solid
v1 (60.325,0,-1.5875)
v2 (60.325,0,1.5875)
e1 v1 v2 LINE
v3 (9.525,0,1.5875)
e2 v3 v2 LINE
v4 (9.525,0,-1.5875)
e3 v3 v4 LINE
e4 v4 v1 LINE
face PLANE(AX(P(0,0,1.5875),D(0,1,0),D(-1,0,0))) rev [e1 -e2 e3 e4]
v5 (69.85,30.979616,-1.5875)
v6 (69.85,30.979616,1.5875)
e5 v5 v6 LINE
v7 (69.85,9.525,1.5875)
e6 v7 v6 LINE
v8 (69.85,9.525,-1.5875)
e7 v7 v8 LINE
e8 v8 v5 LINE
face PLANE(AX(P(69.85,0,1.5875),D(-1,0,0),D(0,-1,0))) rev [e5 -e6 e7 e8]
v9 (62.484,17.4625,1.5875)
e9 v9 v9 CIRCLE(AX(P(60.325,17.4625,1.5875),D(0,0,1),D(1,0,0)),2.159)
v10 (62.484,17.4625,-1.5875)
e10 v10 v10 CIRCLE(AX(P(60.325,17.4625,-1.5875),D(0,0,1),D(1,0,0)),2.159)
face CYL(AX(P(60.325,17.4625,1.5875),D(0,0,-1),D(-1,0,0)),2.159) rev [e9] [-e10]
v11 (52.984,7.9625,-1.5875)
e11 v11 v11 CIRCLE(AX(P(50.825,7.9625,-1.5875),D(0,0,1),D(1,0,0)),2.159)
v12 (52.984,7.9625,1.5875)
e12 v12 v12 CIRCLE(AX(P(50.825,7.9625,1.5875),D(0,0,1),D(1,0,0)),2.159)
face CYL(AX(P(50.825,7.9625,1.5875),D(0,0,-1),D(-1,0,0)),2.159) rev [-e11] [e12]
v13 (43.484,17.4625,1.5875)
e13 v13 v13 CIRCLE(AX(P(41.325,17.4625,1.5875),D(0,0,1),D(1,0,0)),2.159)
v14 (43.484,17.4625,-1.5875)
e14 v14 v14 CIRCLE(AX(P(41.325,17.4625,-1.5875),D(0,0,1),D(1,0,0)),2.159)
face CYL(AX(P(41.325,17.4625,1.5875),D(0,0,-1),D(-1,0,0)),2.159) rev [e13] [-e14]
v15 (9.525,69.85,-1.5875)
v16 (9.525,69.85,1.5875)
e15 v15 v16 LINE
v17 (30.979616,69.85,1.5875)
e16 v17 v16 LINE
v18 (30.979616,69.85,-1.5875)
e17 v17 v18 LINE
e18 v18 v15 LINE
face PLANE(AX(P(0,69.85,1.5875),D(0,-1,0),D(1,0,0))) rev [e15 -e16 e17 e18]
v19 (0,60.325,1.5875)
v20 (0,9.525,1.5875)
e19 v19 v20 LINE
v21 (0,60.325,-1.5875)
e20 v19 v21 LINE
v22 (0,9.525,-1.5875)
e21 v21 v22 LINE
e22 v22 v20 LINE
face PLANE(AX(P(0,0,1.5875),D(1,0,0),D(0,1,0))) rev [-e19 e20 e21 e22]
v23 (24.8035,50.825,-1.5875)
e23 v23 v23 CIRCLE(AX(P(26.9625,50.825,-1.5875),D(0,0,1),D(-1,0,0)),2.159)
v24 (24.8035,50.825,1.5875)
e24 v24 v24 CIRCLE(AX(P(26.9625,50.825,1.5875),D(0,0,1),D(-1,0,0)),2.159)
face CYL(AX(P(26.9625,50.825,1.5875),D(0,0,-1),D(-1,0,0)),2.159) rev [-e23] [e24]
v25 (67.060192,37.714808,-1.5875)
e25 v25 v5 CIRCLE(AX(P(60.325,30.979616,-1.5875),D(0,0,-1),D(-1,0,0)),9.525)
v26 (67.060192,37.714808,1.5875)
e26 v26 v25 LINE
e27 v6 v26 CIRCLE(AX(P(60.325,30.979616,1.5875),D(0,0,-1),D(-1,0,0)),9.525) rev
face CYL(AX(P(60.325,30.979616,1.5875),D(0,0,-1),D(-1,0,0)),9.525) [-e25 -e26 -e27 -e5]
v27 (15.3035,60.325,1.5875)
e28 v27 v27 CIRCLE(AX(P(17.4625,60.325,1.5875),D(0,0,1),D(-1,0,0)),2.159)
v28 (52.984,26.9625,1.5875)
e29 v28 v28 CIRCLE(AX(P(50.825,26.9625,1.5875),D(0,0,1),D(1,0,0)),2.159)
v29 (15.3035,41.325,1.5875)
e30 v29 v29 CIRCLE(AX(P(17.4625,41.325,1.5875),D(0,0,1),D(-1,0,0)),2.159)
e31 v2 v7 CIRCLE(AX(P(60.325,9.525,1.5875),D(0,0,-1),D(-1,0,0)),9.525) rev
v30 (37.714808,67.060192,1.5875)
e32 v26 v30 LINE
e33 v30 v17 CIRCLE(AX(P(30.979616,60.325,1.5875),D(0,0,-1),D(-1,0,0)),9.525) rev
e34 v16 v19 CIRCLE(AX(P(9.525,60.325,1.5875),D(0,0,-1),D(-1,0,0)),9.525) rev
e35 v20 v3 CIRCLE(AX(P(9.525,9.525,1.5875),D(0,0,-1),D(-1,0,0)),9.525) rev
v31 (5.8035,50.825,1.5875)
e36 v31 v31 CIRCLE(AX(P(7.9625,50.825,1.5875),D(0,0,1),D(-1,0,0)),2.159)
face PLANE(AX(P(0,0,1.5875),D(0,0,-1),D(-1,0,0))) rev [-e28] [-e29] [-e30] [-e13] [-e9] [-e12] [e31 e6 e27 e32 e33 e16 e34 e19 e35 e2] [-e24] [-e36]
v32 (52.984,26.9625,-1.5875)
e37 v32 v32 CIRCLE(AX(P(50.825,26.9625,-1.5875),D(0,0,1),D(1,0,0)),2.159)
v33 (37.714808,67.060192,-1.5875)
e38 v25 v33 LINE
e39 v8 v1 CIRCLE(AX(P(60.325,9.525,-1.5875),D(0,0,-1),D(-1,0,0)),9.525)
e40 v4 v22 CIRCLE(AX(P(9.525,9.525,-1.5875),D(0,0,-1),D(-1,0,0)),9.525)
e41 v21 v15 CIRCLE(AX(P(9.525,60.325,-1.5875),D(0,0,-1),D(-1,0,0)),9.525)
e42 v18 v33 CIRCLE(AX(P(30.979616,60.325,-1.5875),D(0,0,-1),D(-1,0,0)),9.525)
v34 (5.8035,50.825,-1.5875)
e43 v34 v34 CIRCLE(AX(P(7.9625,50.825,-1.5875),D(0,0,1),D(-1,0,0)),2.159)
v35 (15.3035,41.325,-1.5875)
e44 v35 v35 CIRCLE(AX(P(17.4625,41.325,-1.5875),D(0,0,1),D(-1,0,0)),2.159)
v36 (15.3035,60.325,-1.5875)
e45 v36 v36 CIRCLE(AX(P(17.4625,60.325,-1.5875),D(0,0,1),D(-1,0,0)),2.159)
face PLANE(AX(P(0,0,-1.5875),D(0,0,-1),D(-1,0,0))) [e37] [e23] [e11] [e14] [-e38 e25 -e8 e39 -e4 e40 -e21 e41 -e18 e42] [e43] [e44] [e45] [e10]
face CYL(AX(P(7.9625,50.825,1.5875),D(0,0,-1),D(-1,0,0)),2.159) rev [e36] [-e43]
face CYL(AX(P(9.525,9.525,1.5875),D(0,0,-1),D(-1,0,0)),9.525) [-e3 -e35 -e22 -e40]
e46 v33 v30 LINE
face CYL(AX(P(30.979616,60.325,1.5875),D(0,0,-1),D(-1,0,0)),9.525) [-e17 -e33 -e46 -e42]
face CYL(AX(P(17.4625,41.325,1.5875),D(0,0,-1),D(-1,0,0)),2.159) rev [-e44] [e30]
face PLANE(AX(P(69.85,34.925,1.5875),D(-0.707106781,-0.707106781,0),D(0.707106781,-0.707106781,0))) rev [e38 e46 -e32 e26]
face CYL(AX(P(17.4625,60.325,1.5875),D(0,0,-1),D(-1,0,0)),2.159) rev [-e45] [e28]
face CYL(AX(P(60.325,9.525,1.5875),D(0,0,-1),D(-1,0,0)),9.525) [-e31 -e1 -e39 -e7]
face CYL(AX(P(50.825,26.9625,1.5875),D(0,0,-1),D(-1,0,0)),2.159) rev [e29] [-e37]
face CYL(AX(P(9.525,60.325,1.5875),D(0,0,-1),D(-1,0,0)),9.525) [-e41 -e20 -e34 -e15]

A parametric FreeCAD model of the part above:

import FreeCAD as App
import Part
import Sketcher
from FreeCAD import Vector
Q = App.Units.Quantity


def edges_at(feature, points):
    """Names of the edges that pass closest to the given points."""
    edges = feature.Shape.Edges
    near = lambda p: min(range(len(edges)), key=lambda i: edges[i].distToShape(Part.Vertex(*p))[0])
    return sorted({f"Edge{near(p) + 1}" for p in points})


def add_polygon(sketch, points):
    """Adds a closed chain of lines whose ends are joined by coincident constraints."""
    first, n = sketch.GeometryCount, len(points)
    for a, b in zip(points, points[1:] + points[:1]):
        sketch.addGeometry(Part.LineSegment(App.Vector(*a, 0), App.Vector(*b, 0)), False)
    for i in range(n):
        sketch.addConstraint(Sketcher.Constraint("Coincident", first + i, 2, first + (i + 1) % n, 1))

doc = App.newDocument("Part")
body = doc.addObject("PartDesign::Body", "Body")

# Sketch on XY plane
sketch1 = body.newObject("Sketcher::SketchObject", "Sketch")
sketch1.AttachmentSupport = (doc.getObject("XY_Plane"), [""])
sketch1.MapMode = "FlatFace"
add_polygon(sketch1, [(0, 0), (69.8, 0), (69.8, 34.9), (34.9, 69.8), (0, 69.8)])  # lines 0-4
sketch1.addGeometry(Part.Circle(Vector(41.3, 17.5, 0), Vector(0, 0, 1), 2.2), False)  # 5
sketch1.addGeometry(Part.Circle(Vector(50.8, 8, 0), Vector(0, 0, 1), 2.2), False)  # 6
sketch1.addGeometry(Part.Circle(Vector(60.3, 17.5, 0), Vector(0, 0, 1), 2.2), False)  # 7
sketch1.addGeometry(Part.Circle(Vector(50.8, 27, 0), Vector(0, 0, 1), 2.2), False)  # 8
sketch1.addGeometry(Part.Circle(Vector(17.5, 41.3, 0), Vector(0, 0, 1), 2.2), False)  # 9
sketch1.addGeometry(Part.Circle(Vector(8, 50.8, 0), Vector(0, 0, 1), 2.2), False)  # 10
sketch1.addGeometry(Part.Circle(Vector(17.5, 60.3, 0), Vector(0, 0, 1), 2.2), False)  # 11
sketch1.addGeometry(Part.Circle(Vector(27, 50.8, 0), Vector(0, 0, 1), 2.2), False)  # 12
sketch1.addConstraint([
    Sketcher.Constraint("Horizontal", 0),
    Sketcher.Constraint("Vertical", 1),
    Sketcher.Constraint("Horizontal", 3),
    Sketcher.Constraint("Vertical", 4),
    Sketcher.Constraint("Coincident", 4, 2, -1, 1),
    Sketcher.Constraint("Equal", 5, 6),
    Sketcher.Constraint("Equal", 6, 7),
    Sketcher.Constraint("Equal", 7, 8),
    Sketcher.Constraint("Equal", 8, 9),
    Sketcher.Constraint("Equal", 9, 10),
    Sketcher.Constraint("Equal", 10, 11),
    Sketcher.Constraint("Equal", 11, 12),
    Sketcher.Constraint("Horizontal", 5, 3, 7, 3),
    Sketcher.Constraint("Horizontal", 10, 3, 12, 3),
    Sketcher.Constraint("Vertical", 6, 3, 8, 3),
    Sketcher.Constraint("Vertical", 9, 3, 11, 3),
    Sketcher.Constraint("Equal", 3, 1),
    Sketcher.Constraint("Equal", 0, 4),
    Sketcher.Constraint("Diameter", 5, Q("0.17 in")),
    Sketcher.Constraint("DistanceX", 0, 1, 0, 2, Q("2.75 in")),
    Sketcher.Constraint("DistanceX", 3, 2, 3, 1, Q("1.375 in")),
    Sketcher.Constraint("DistanceY", -1, 1, 5, 3, Q("0.6875 in")),
    Sketcher.Constraint("DistanceX", -1, 1, 7, 3, Q("2.375 in")),
    Sketcher.Constraint("DistanceX", -1, 1, 9, 3, Q("0.6875 in")),
    Sketcher.Constraint("DistanceY", -1, 1, 11, 3, Q("2.375 in")),
    Sketcher.Constraint("DistanceX", 10, 3, 8, 3, Q("1.6875 in")),
    Sketcher.Constraint("DistanceY", 6, 3, 10, 3, Q("1.6875 in")),
    Sketcher.Constraint("DistanceX", -1, 1, 5, 3, Q("41.325 mm")),
    Sketcher.Constraint("DistanceX", -1, 1, 6, 3, Q("50.825 mm")),
    Sketcher.Constraint("DistanceY", -1, 1, 6, 3, Q("7.9625 mm")),
    Sketcher.Constraint("DistanceY", -1, 1, 8, 3, Q("26.9625 mm")),
    Sketcher.Constraint("DistanceY", -1, 1, 9, 3, Q("41.325 mm")),
    Sketcher.Constraint("DistanceX", -1, 1, 12, 3, Q("26.9625 mm")),
])
pad1 = body.newObject("PartDesign::Pad", "Pad")
pad1.Profile = sketch1
pad1.Length = Q("0.125 in")
pad1.Midplane = True
doc.recompute()

fillet = body.newObject("PartDesign::Fillet", "Fillet")
fillet.Base = (pad1, edges_at(pad1, [
    (0, 69.85, 0),
    (34.925, 69.85, 0),
    (69.85, 34.925, 0),
    (69.85, 0, 0),
    (0, 0, 0),
]))
fillet.Radius = Q("0.375 in")

doc.recompute()
